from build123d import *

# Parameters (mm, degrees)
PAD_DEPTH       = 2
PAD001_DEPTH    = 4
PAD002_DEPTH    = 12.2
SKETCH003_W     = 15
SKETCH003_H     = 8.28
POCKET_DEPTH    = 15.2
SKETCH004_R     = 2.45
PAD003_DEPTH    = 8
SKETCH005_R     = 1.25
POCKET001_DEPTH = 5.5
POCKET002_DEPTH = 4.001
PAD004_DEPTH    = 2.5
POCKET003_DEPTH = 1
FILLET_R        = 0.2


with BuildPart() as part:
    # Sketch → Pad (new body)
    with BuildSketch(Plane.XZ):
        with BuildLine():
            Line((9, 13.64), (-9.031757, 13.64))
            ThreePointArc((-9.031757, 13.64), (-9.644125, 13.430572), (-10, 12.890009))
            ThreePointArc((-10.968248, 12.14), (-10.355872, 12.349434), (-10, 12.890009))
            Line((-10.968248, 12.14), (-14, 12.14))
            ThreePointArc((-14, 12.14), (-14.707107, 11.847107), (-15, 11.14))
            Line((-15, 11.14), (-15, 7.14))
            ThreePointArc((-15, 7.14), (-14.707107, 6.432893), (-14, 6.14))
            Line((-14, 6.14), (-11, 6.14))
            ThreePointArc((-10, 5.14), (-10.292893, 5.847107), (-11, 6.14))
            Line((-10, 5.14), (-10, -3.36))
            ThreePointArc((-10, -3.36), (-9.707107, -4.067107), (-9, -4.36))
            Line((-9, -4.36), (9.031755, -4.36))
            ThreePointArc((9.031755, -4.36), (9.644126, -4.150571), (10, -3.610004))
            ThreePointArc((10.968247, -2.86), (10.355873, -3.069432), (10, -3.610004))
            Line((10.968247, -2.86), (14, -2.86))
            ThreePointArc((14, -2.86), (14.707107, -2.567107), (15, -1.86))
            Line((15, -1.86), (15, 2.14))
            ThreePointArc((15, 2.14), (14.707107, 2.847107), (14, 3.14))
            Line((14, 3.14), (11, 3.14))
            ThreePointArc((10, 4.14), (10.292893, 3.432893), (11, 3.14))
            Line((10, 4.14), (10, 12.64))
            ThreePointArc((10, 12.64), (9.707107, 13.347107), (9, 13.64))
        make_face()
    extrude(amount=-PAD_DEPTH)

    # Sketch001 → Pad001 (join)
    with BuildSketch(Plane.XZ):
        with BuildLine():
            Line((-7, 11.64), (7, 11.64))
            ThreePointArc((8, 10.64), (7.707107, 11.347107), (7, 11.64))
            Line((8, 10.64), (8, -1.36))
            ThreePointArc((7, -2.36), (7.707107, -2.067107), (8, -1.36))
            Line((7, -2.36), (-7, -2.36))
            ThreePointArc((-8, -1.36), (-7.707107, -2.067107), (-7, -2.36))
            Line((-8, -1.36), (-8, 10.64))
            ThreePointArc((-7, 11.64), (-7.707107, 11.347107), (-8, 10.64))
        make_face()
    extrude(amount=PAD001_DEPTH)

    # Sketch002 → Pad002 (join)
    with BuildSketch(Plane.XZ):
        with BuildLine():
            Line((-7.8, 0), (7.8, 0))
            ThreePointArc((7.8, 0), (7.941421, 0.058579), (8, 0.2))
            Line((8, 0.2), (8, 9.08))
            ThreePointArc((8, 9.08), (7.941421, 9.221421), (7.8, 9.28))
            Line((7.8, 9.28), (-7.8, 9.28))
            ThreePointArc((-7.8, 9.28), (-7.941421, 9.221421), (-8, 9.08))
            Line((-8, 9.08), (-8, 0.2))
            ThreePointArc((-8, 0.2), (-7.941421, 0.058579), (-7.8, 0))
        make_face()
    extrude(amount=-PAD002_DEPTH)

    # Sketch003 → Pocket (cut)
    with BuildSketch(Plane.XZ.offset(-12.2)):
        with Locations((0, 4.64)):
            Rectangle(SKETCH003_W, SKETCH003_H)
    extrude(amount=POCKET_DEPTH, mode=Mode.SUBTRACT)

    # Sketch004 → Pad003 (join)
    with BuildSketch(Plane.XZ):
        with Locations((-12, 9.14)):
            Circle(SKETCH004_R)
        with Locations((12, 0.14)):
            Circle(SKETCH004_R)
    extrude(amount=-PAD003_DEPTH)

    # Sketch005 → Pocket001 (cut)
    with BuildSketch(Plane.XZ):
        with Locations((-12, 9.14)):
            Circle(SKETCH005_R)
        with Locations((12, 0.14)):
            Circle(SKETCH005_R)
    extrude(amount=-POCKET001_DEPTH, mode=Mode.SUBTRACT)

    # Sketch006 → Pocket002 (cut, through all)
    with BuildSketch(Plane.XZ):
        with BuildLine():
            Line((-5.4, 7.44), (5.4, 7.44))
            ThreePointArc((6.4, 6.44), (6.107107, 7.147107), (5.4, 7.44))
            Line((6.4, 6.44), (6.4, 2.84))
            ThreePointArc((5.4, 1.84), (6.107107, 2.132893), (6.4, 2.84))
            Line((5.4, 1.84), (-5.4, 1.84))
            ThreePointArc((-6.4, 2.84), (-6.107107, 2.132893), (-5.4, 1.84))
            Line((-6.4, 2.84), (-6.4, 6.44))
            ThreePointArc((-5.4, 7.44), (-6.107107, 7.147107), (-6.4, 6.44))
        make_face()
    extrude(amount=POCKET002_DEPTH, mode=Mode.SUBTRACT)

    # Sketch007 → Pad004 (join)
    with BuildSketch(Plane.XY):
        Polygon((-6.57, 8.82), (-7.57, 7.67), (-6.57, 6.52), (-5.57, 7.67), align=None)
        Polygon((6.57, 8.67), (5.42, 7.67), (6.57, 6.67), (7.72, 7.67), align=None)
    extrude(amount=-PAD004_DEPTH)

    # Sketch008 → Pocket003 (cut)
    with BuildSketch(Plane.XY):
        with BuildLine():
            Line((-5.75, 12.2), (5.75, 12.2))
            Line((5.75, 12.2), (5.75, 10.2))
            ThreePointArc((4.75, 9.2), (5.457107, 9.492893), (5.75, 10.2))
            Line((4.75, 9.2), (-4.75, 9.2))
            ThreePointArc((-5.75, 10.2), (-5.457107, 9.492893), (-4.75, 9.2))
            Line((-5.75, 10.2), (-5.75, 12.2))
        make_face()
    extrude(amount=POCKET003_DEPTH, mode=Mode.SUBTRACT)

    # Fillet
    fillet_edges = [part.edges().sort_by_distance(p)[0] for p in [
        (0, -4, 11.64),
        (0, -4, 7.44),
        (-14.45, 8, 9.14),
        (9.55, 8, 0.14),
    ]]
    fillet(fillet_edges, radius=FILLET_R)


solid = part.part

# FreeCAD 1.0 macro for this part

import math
import FreeCAD as App
import Part
import Sketcher
from FreeCAD import Vector


def edges_at(feature, points):
    """Names of the edges that pass closest to the given points."""
    edges = feature.Shape.Edges
    near = lambda p: min(range(len(edges)), key=lambda i: edges[i].distToShape(Part.Vertex(*p))[0])
    return sorted({f"Edge{near(p) + 1}" for p in points})

doc = App.newDocument("Part")
body = doc.addObject("PartDesign::Body", "Body")

sketch1 = body.newObject("Sketcher::SketchObject", "Sketch")
sketch1.AttachmentSupport = (doc.getObject("XZ_Plane"), [""])
sketch1.MapMode = "FlatFace"
sketch1.addGeometry([
    Part.LineSegment(Vector(9, 13.6, 0), Vector(-9, 13.6, 0)),
    Part.ArcOfCircle(Part.Circle(Vector(-9, 12.6, 0), Vector(0, 0, 1), 1), math.radians(90), math.radians(166)),
    Part.ArcOfCircle(Part.Circle(Vector(-11, 13.1, 0), Vector(0, 0, 1), 1), math.radians(-90), math.radians(-14)),
    Part.LineSegment(Vector(-11, 12.1, 0), Vector(-14, 12.1, 0)),
    Part.ArcOfCircle(Part.Circle(Vector(-14, 11.1, 0), Vector(0, 0, 1), 1), math.radians(90), math.radians(180)),
    Part.LineSegment(Vector(-15, 11.1, 0), Vector(-15, 7.1, 0)),
    Part.ArcOfCircle(Part.Circle(Vector(-14, 7.1, 0), Vector(0, 0, 1), 1), math.radians(180), math.radians(270)),
    Part.LineSegment(Vector(-14, 6.1, 0), Vector(-11, 6.1, 0)),
    Part.ArcOfCircle(Part.Circle(Vector(-11, 5.1, 0), Vector(0, 0, 1), 1), math.radians(0), math.radians(90)),
    Part.LineSegment(Vector(-10, 5.1, 0), Vector(-10, -3.4, 0)),
    Part.ArcOfCircle(Part.Circle(Vector(-9, -3.4, 0), Vector(0, 0, 1), 1), math.radians(180), math.radians(270)),
    Part.LineSegment(Vector(-9, -4.4, 0), Vector(9, -4.4, 0)),
    Part.ArcOfCircle(Part.Circle(Vector(9, -3.4, 0), Vector(0, 0, 1), 1), math.radians(-90), math.radians(-14)),
    Part.ArcOfCircle(Part.Circle(Vector(11, -3.9, 0), Vector(0, 0, 1), 1), math.radians(90), math.radians(166)),
    Part.LineSegment(Vector(11, -2.9, 0), Vector(14, -2.9, 0)),
    Part.ArcOfCircle(Part.Circle(Vector(14, -1.9, 0), Vector(0, 0, 1), 1), math.radians(-90), math.radians(0)),
    Part.LineSegment(Vector(15, -1.9, 0), Vector(15, 2.1, 0)),
    Part.ArcOfCircle(Part.Circle(Vector(14, 2.1, 0), Vector(0, 0, 1), 1), math.radians(0), math.radians(90)),
    Part.LineSegment(Vector(14, 3.1, 0), Vector(11, 3.1, 0)),
    Part.ArcOfCircle(Part.Circle(Vector(11, 4.1, 0), Vector(0, 0, 1), 1), math.radians(180), math.radians(270)),
    Part.LineSegment(Vector(10, 4.1, 0), Vector(10, 12.6, 0)),
    Part.ArcOfCircle(Part.Circle(Vector(9, 12.6, 0), Vector(0, 0, 1), 1), math.radians(0), math.radians(90)),
], False)
sketch1.addConstraint([
    Sketcher.Constraint("Tangent", 0, 2, 1, 1),
    Sketcher.Constraint("Coincident", 1, 2, 2, 2),
    Sketcher.Constraint("Tangent", 2, 1, 3, 1),
    Sketcher.Constraint("Tangent", 3, 2, 4, 1),
    Sketcher.Constraint("Tangent", 4, 2, 5, 1),
    Sketcher.Constraint("Tangent", 5, 2, 6, 1),
    Sketcher.Constraint("Tangent", 6, 2, 7, 1),
    Sketcher.Constraint("Tangent", 7, 2, 8, 2),
    Sketcher.Constraint("Tangent", 8, 1, 9, 1),
    Sketcher.Constraint("Tangent", 9, 2, 10, 1),
    Sketcher.Constraint("Tangent", 10, 2, 11, 1),
    Sketcher.Constraint("Tangent", 11, 2, 12, 1),
    Sketcher.Constraint("Coincident", 12, 2, 13, 2),
    Sketcher.Constraint("Tangent", 13, 1, 14, 1),
    Sketcher.Constraint("Tangent", 14, 2, 15, 1),
    Sketcher.Constraint("Tangent", 15, 2, 16, 1),
    Sketcher.Constraint("Tangent", 16, 2, 17, 1),
    Sketcher.Constraint("Tangent", 17, 2, 18, 1),
    Sketcher.Constraint("Tangent", 18, 2, 19, 2),
    Sketcher.Constraint("Tangent", 19, 1, 20, 1),
    Sketcher.Constraint("Tangent", 20, 2, 21, 1),
    Sketcher.Constraint("Tangent", 21, 2, 0, 1),
    Sketcher.Constraint("Horizontal", 0),
    Sketcher.Constraint("Horizontal", 3),
    Sketcher.Constraint("Vertical", 5),
    Sketcher.Constraint("Horizontal", 7),
    Sketcher.Constraint("Vertical", 9),
    Sketcher.Constraint("Horizontal", 11),
    Sketcher.Constraint("Horizontal", 14),
    Sketcher.Constraint("Vertical", 16),
    Sketcher.Constraint("Horizontal", 18),
    Sketcher.Constraint("Vertical", 20),
    Sketcher.Constraint("Equal", 1, 2),
    Sketcher.Constraint("Equal", 4, 6),
    Sketcher.Constraint("Equal", 6, 8),
    Sketcher.Constraint("Equal", 8, 10),
    Sketcher.Constraint("Equal", 10, 12),
    Sketcher.Constraint("Equal", 12, 13),
    Sketcher.Constraint("Equal", 13, 15),
    Sketcher.Constraint("Equal", 15, 17),
    Sketcher.Constraint("Equal", 17, 19),
    Sketcher.Constraint("Equal", 19, 21),
    Sketcher.Constraint("Vertical", 1, 2, 8, 1),
    Sketcher.Constraint("Vertical", 12, 2, 19, 1),
    Sketcher.Constraint("Equal", 0, 11),
    Sketcher.Constraint("Equal", 3, 14),
    Sketcher.Constraint("Equal", 7, 18),
    Sketcher.Constraint("Equal", 5, 16),
    Sketcher.Constraint("Equal", 9, 20),
    Sketcher.Constraint("Radius", 1, 1.000001),
    Sketcher.Constraint("DistanceX", 7, 1, 7, 2, 3.0),
    Sketcher.Constraint("DistanceY", 5, 2, 5, 1, 4.0),
    Sketcher.Constraint("DistanceY", 9, 2, 9, 1, 8.5),
    Sketcher.Constraint("DistanceX", 4, 3, -1, 1, 14.000001),
    Sketcher.Constraint("DistanceX", -1, 1, 15, 3, 14.000001),
    Sketcher.Constraint("DistanceY", 10, 3, 1, 3, 15.999999),
    Sketcher.Constraint("DistanceY", -1, 1, 1, 3, 12.639999),
    Sketcher.Constraint("DistanceX", 3, 2, 3, 1, 3.031752),
])
pad1 = body.newObject("PartDesign::Pad", "Pad")
pad1.Profile = sketch1
pad1.Length = 2
pad1.Reversed = True

sketch2 = body.newObject("Sketcher::SketchObject", "Sketch001")
sketch2.AttachmentSupport = (doc.getObject("XZ_Plane"), [""])
sketch2.MapMode = "FlatFace"
sketch2.addGeometry([
    Part.LineSegment(Vector(7, 11.6, 0), Vector(-7, 11.6, 0)),
    Part.ArcOfCircle(Part.Circle(Vector(-7, 10.6, 0), Vector(0, 0, 1), 1), math.radians(90), math.radians(180)),
    Part.LineSegment(Vector(-8, 10.6, 0), Vector(-8, -1.4, 0)),
    Part.ArcOfCircle(Part.Circle(Vector(-7, -1.4, 0), Vector(0, 0, 1), 1), math.radians(180), math.radians(270)),
    Part.LineSegment(Vector(-7, -2.4, 0), Vector(7, -2.4, 0)),
    Part.ArcOfCircle(Part.Circle(Vector(7, -1.4, 0), Vector(0, 0, 1), 1), math.radians(-90), math.radians(0)),
    Part.LineSegment(Vector(8, -1.4, 0), Vector(8, 10.6, 0)),
    Part.ArcOfCircle(Part.Circle(Vector(7, 10.6, 0), Vector(0, 0, 1), 1), math.radians(0), math.radians(90)),
], False)
sketch2.addConstraint([
    Sketcher.Constraint("Tangent", 0, 2, 1, 1),
    Sketcher.Constraint("Tangent", 1, 2, 2, 1),
    Sketcher.Constraint("Tangent", 2, 2, 3, 1),
    Sketcher.Constraint("Tangent", 3, 2, 4, 1),
    Sketcher.Constraint("Tangent", 4, 2, 5, 1),
    Sketcher.Constraint("Tangent", 5, 2, 6, 1),
    Sketcher.Constraint("Tangent", 6, 2, 7, 1),
    Sketcher.Constraint("Tangent", 7, 2, 0, 1),
    Sketcher.Constraint("Horizontal", 0),
    Sketcher.Constraint("Vertical", 2),
    Sketcher.Constraint("Horizontal", 4),
    Sketcher.Constraint("Vertical", 6),
    Sketcher.Constraint("Equal", 1, 3),
    Sketcher.Constraint("Equal", 3, 5),
    Sketcher.Constraint("Equal", 5, 7),
    Sketcher.Constraint("Radius", 1, 0.999999),
    Sketcher.Constraint("DistanceX", 0, 2, 0, 1, 14.0),
    Sketcher.Constraint("DistanceY", 2, 2, 2, 1, 12.0),
    Sketcher.Constraint("DistanceX", 1, 3, -1, 1, 7.000001),
    Sketcher.Constraint("DistanceY", -1, 1, 1, 3, 10.640001),
])
pad2 = body.newObject("PartDesign::Pad", "Pad001")
pad2.Profile = sketch2
pad2.Length = 4

sketch3 = body.newObject("Sketcher::SketchObject", "Sketch002")
sketch3.AttachmentSupport = (doc.getObject("XZ_Plane"), [""])
sketch3.MapMode = "FlatFace"
sketch3.addGeometry([
    Part.LineSegment(Vector(-7.8, 0, 0), Vector(7.8, 0, 0)),
    Part.ArcOfCircle(Part.Circle(Vector(7.8, 0.2, 0), Vector(0, 0, 1), 0.2), math.radians(-90), math.radians(0)),
    Part.LineSegment(Vector(8, 0.2, 0), Vector(8, 9.08, 0)),
    Part.ArcOfCircle(Part.Circle(Vector(7.8, 9.08, 0), Vector(0, 0, 1), 0.2), math.radians(0), math.radians(90)),
    Part.LineSegment(Vector(7.8, 9.28, 0), Vector(-7.8, 9.28, 0)),
    Part.ArcOfCircle(Part.Circle(Vector(-7.8, 9.08, 0), Vector(0, 0, 1), 0.2), math.radians(90), math.radians(180)),
    Part.LineSegment(Vector(-8, 9.08, 0), Vector(-8, 0.2, 0)),
    Part.ArcOfCircle(Part.Circle(Vector(-7.8, 0.2, 0), Vector(0, 0, 1), 0.2), math.radians(-180), math.radians(-90)),
], False)
sketch3.addConstraint([
    Sketcher.Constraint("Coincident", 0, 2, 1, 1),
    Sketcher.Constraint("Coincident", 1, 2, 2, 1),
    Sketcher.Constraint("Coincident", 2, 2, 3, 1),
    Sketcher.Constraint("Coincident", 3, 2, 4, 1),
    Sketcher.Constraint("Coincident", 4, 2, 5, 1),
    Sketcher.Constraint("Coincident", 5, 2, 6, 1),
    Sketcher.Constraint("Coincident", 6, 2, 7, 1),
    Sketcher.Constraint("Coincident", 7, 2, 0, 1),
    Sketcher.Constraint("Horizontal", 0),
    Sketcher.Constraint("Vertical", 2),
    Sketcher.Constraint("Horizontal", 4),
    Sketcher.Constraint("Vertical", 6),
    Sketcher.Constraint("Equal", 1, 3),
    Sketcher.Constraint("Equal", 3, 5),
    Sketcher.Constraint("Equal", 5, 7),
    Sketcher.Constraint("Symmetric", 0, 2, 7, 2, -1, 1),
    Sketcher.Constraint("Symmetric", 2, 2, 5, 2, -2),
    Sketcher.Constraint("Horizontal", 7, 3, 1, 2),
    Sketcher.Constraint("Horizontal", 5, 3, 2, 2),
    Sketcher.Constraint("Horizontal", 1, 2, 6, 2),
    Sketcher.Constraint("Vertical", 3, 3, 0, 2),
    Sketcher.Constraint("Vertical", 0, 2, 3, 2),
    Sketcher.Constraint("Vertical", 7, 3, 4, 2),
    Sketcher.Constraint("Radius", 1, 0.200001),
    Sketcher.Constraint("DistanceX", 0, 1, 0, 2, 15.6),
    Sketcher.Constraint("DistanceY", 2, 1, 2, 2, 8.88),
])
pad3 = body.newObject("PartDesign::Pad", "Pad002")
pad3.Profile = sketch3
pad3.Length = 12.2
pad3.Reversed = True

sketch4 = body.newObject("Sketcher::SketchObject", "Sketch003")
sketch4.AttachmentSupport = (doc.getObject("XZ_Plane"), [""])
sketch4.MapMode = "FlatFace"
sketch4.AttachmentOffset = App.Placement(Vector(0, 0, -12.2), App.Rotation())
sketch4.addGeometry([
    Part.LineSegment(Vector(-8, 9, 0), Vector(-8, 0, 0)),
    Part.LineSegment(Vector(-8, 0, 0), Vector(8, 0, 0)),
    Part.LineSegment(Vector(8, 0, 0), Vector(8, 9, 0)),
    Part.LineSegment(Vector(8, 9, 0), Vector(-8, 9, 0)),
], False)
sketch4.addConstraint([
    Sketcher.Constraint("Coincident", 0, 2, 1, 1),
    Sketcher.Constraint("Coincident", 1, 2, 2, 1),
    Sketcher.Constraint("Coincident", 2, 2, 3, 1),
    Sketcher.Constraint("Coincident", 3, 2, 0, 1),
    Sketcher.Constraint("Vertical", 0),
    Sketcher.Constraint("Horizontal", 1),
    Sketcher.Constraint("Vertical", 2),
    Sketcher.Constraint("Horizontal", 3),
    Sketcher.Constraint("DistanceX", 1, 1, 1, 2, 15.0),
    Sketcher.Constraint("DistanceY", 0, 2, 0, 1, 8.28),
    Sketcher.Constraint("DistanceX", 0, 2, -1, 1, 7.5),
    Sketcher.Constraint("DistanceY", -1, 1, 0, 2, 0.5),
])
pocket1 = body.newObject("PartDesign::Pocket", "Pocket")
pocket1.Profile = sketch4
pocket1.Length = 15.2
pocket1.Reversed = True

sketch5 = body.newObject("Sketcher::SketchObject", "Sketch004")
sketch5.AttachmentSupport = (doc.getObject("XZ_Plane"), [""])
sketch5.MapMode = "FlatFace"
sketch5.addGeometry([
    Part.Circle(Vector(-12, 9.1, 0), Vector(0, 0, 1), 2.5),
    Part.Circle(Vector(12, 0.1, 0), Vector(0, 0, 1), 2.5),
], False)
sketch5.addConstraint([
    Sketcher.Constraint("Equal", 0, 1),
    Sketcher.Constraint("Diameter", 0, 4.9),
    Sketcher.Constraint("DistanceX", 0, 3, -1, 1, 12.0),
    Sketcher.Constraint("DistanceX", -1, 1, 1, 3, 12.0),
    Sketcher.Constraint("DistanceY", 1, 3, 0, 3, 9.0),
    Sketcher.Constraint("DistanceY", -1, 1, 0, 3, 9.14),
])
pad4 = body.newObject("PartDesign::Pad", "Pad003")
pad4.Profile = sketch5
pad4.Length = 8
pad4.Reversed = True

sketch6 = body.newObject("Sketcher::SketchObject", "Sketch005")
sketch6.AttachmentSupport = (doc.getObject("XZ_Plane"), [""])
sketch6.MapMode = "FlatFace"
sketch6.addGeometry([
    Part.Circle(Vector(-12, 9.1, 0), Vector(0, 0, 1), 1.2),
    Part.Circle(Vector(12, 0.1, 0), Vector(0, 0, 1), 1.2),
], False)
sketch6.addConstraint([
    Sketcher.Constraint("Equal", 0, 1),
    Sketcher.Constraint("Diameter", 0, 2.5),
    Sketcher.Constraint("DistanceX", 0, 3, -1, 1, 12.0),
    Sketcher.Constraint("DistanceX", -1, 1, 1, 3, 12.0),
    Sketcher.Constraint("DistanceY", 1, 3, 0, 3, 9.0),
    Sketcher.Constraint("DistanceY", -1, 1, 0, 3, 9.14),
])
pocket2 = body.newObject("PartDesign::Pocket", "Pocket001")
pocket2.Profile = sketch6
pocket2.Length = 5.5

sketch7 = body.newObject("Sketcher::SketchObject", "Sketch006")
sketch7.AttachmentSupport = (doc.getObject("XZ_Plane"), [""])
sketch7.MapMode = "FlatFace"
sketch7.addGeometry([
    Part.LineSegment(Vector(5.4, 7.4, 0), Vector(-5.4, 7.4, 0)),
    Part.ArcOfCircle(Part.Circle(Vector(-5.4, 6.4, 0), Vector(0, 0, 1), 1), math.radians(90), math.radians(180)),
    Part.LineSegment(Vector(-6.4, 6.4, 0), Vector(-6.4, 2.8, 0)),
    Part.ArcOfCircle(Part.Circle(Vector(-5.4, 2.8, 0), Vector(0, 0, 1), 1), math.radians(180), math.radians(270)),
    Part.LineSegment(Vector(-5.4, 1.8, 0), Vector(5.4, 1.8, 0)),
    Part.ArcOfCircle(Part.Circle(Vector(5.4, 2.8, 0), Vector(0, 0, 1), 1), math.radians(-90), math.radians(0)),
    Part.LineSegment(Vector(6.4, 2.8, 0), Vector(6.4, 6.4, 0)),
    Part.ArcOfCircle(Part.Circle(Vector(5.4, 6.4, 0), Vector(0, 0, 1), 1), math.radians(0), math.radians(90)),
], False)
sketch7.addConstraint([
    Sketcher.Constraint("Tangent", 0, 2, 1, 1),
    Sketcher.Constraint("Tangent", 1, 2, 2, 1),
    Sketcher.Constraint("Tangent", 2, 2, 3, 1),
    Sketcher.Constraint("Tangent", 3, 2, 4, 1),
    Sketcher.Constraint("Tangent", 4, 2, 5, 1),
    Sketcher.Constraint("Tangent", 5, 2, 6, 1),
    Sketcher.Constraint("Tangent", 6, 2, 7, 1),
    Sketcher.Constraint("Tangent", 7, 2, 0, 1),
    Sketcher.Constraint("Horizontal", 0),
    Sketcher.Constraint("Vertical", 2),
    Sketcher.Constraint("Horizontal", 4),
    Sketcher.Constraint("Vertical", 6),
    Sketcher.Constraint("Equal", 1, 3),
    Sketcher.Constraint("Equal", 3, 5),
    Sketcher.Constraint("Equal", 5, 7),
    Sketcher.Constraint("Radius", 1, 0.999999),
    Sketcher.Constraint("DistanceX", 0, 2, 0, 1, 10.8),
    Sketcher.Constraint("DistanceY", 2, 2, 2, 1, 3.6),
    Sketcher.Constraint("DistanceX", 1, 3, -1, 1, 5.400001),
    Sketcher.Constraint("DistanceY", -1, 1, 1, 3, 6.440001),
])
pocket3 = body.newObject("PartDesign::Pocket", "Pocket002")
pocket3.Profile = sketch7
pocket3.Type = "ThroughAll"
pocket3.Reversed = True

sketch8 = body.newObject("Sketcher::SketchObject", "Sketch007")
sketch8.AttachmentSupport = (doc.getObject("XY_Plane"), [""])
sketch8.MapMode = "FlatFace"
sketch8.addGeometry([
    Part.LineSegment(Vector(-6.6, 8.8, 0), Vector(-7.6, 7.7, 0)),
    Part.LineSegment(Vector(-7.6, 7.7, 0), Vector(-6.6, 6.5, 0)),
    Part.LineSegment(Vector(-6.6, 6.5, 0), Vector(-5.6, 7.7, 0)),
    Part.LineSegment(Vector(-5.6, 7.7, 0), Vector(-6.6, 8.8, 0)),
    Part.LineSegment(Vector(6.6, 8.7, 0), Vector(5.4, 7.7, 0)),
    Part.LineSegment(Vector(5.4, 7.7, 0), Vector(6.6, 6.7, 0)),
    Part.LineSegment(Vector(6.6, 6.7, 0), Vector(7.7, 7.7, 0)),
    Part.LineSegment(Vector(7.7, 7.7, 0), Vector(6.6, 8.7, 0)),
], False)
sketch8.addConstraint([
    Sketcher.Constraint("Coincident", 0, 2, 1, 1),
    Sketcher.Constraint("Coincident", 1, 2, 2, 1),
    Sketcher.Constraint("Coincident", 2, 2, 3, 1),
    Sketcher.Constraint("Coincident", 3, 2, 0, 1),
    Sketcher.Constraint("Coincident", 4, 2, 5, 1),
    Sketcher.Constraint("Coincident", 5, 2, 6, 1),
    Sketcher.Constraint("Coincident", 6, 2, 7, 1),
    Sketcher.Constraint("Coincident", 7, 2, 4, 1),
    Sketcher.Constraint("Parallel", 0, 2),
    Sketcher.Constraint("Parallel", 1, 3),
    Sketcher.Constraint("Perpendicular", 3, 4),
    Sketcher.Constraint("Perpendicular", 2, 5),
    Sketcher.Constraint("Parallel", 4, 6),
    Sketcher.Constraint("Parallel", 5, 7),
    Sketcher.Constraint("Horizontal", 0, 2, 2, 2),
    Sketcher.Constraint("Horizontal", 2, 2, 4, 2),
    Sketcher.Constraint("Horizontal", 4, 2, 6, 2),
    Sketcher.Constraint("Vertical", 1, 2, 3, 2),
    Sketcher.Constraint("Equal", 3, 4),
    Sketcher.Constraint("DistanceX", 0, 2, 1, 2, 1.0),
    Sketcher.Constraint("DistanceY", 1, 2, 3, 2, 2.3),
    Sketcher.Constraint("DistanceX", 0, 2, -1, 1, 7.57),
    Sketcher.Constraint("DistanceY", -1, 1, 0, 2, 7.67),
    Sketcher.Constraint("DistanceX", -1, 1, 4, 2, 5.42),
])
pad5 = body.newObject("PartDesign::Pad", "Pad004")
pad5.Profile = sketch8
pad5.Length = 2.5
pad5.Reversed = True

sketch9 = body.newObject("Sketcher::SketchObject", "Sketch008")
sketch9.AttachmentSupport = (doc.getObject("XY_Plane"), [""])
sketch9.MapMode = "FlatFace"
sketch9.addGeometry([
    Part.LineSegment(Vector(5.8, 12.2, 0), Vector(-5.8, 12.2, 0)),
    Part.LineSegment(Vector(-5.8, 12.2, 0), Vector(-5.8, 10.2, 0)),
    Part.ArcOfCircle(Part.Circle(Vector(-4.8, 10.2, 0), Vector(0, 0, 1), 1), math.radians(180), math.radians(270)),
    Part.LineSegment(Vector(-4.8, 9.2, 0), Vector(4.8, 9.2, 0)),
    Part.ArcOfCircle(Part.Circle(Vector(4.8, 10.2, 0), Vector(0, 0, 1), 1), math.radians(-90), math.radians(0)),
    Part.LineSegment(Vector(5.8, 10.2, 0), Vector(5.8, 12.2, 0)),
], False)
sketch9.addConstraint([
    Sketcher.Constraint("Coincident", 0, 2, 1, 1),
    Sketcher.Constraint("Tangent", 1, 2, 2, 1),
    Sketcher.Constraint("Tangent", 2, 2, 3, 1),
    Sketcher.Constraint("Tangent", 3, 2, 4, 1),
    Sketcher.Constraint("Tangent", 4, 2, 5, 1),
    Sketcher.Constraint("Coincident", 5, 2, 0, 1),
    Sketcher.Constraint("Horizontal", 0),
    Sketcher.Constraint("Vertical", 1),
    Sketcher.Constraint("Horizontal", 3),
    Sketcher.Constraint("Vertical", 5),
    Sketcher.Constraint("Equal", 2, 4),
    Sketcher.Constraint("Radius", 2, 0.999999),
    Sketcher.Constraint("DistanceY", 1, 2, 1, 1, 2.0),
    Sketcher.Constraint("DistanceX", 0, 2, 0, 1, 11.5),
    Sketcher.Constraint("DistanceY", -1, 1, 2, 3, 10.199999),
    Sketcher.Constraint("DistanceX", 2, 3, -1, 1, 4.750001),
])
pocket4 = body.newObject("PartDesign::Pocket", "Pocket003")
pocket4.Profile = sketch9
pocket4.Length = 1
pocket4.Reversed = True
doc.recompute()

fillet = body.newObject("PartDesign::Fillet", "Fillet")
fillet.Base = (pocket4, edges_at(pocket4, [
    (0, -4, 11.64),
    (0, -4, 7.44),
    (-14.45, 8, 9.14),
    (9.55, 8, 0.14),
]))
fillet.Radius = 0.2

doc.recompute()
